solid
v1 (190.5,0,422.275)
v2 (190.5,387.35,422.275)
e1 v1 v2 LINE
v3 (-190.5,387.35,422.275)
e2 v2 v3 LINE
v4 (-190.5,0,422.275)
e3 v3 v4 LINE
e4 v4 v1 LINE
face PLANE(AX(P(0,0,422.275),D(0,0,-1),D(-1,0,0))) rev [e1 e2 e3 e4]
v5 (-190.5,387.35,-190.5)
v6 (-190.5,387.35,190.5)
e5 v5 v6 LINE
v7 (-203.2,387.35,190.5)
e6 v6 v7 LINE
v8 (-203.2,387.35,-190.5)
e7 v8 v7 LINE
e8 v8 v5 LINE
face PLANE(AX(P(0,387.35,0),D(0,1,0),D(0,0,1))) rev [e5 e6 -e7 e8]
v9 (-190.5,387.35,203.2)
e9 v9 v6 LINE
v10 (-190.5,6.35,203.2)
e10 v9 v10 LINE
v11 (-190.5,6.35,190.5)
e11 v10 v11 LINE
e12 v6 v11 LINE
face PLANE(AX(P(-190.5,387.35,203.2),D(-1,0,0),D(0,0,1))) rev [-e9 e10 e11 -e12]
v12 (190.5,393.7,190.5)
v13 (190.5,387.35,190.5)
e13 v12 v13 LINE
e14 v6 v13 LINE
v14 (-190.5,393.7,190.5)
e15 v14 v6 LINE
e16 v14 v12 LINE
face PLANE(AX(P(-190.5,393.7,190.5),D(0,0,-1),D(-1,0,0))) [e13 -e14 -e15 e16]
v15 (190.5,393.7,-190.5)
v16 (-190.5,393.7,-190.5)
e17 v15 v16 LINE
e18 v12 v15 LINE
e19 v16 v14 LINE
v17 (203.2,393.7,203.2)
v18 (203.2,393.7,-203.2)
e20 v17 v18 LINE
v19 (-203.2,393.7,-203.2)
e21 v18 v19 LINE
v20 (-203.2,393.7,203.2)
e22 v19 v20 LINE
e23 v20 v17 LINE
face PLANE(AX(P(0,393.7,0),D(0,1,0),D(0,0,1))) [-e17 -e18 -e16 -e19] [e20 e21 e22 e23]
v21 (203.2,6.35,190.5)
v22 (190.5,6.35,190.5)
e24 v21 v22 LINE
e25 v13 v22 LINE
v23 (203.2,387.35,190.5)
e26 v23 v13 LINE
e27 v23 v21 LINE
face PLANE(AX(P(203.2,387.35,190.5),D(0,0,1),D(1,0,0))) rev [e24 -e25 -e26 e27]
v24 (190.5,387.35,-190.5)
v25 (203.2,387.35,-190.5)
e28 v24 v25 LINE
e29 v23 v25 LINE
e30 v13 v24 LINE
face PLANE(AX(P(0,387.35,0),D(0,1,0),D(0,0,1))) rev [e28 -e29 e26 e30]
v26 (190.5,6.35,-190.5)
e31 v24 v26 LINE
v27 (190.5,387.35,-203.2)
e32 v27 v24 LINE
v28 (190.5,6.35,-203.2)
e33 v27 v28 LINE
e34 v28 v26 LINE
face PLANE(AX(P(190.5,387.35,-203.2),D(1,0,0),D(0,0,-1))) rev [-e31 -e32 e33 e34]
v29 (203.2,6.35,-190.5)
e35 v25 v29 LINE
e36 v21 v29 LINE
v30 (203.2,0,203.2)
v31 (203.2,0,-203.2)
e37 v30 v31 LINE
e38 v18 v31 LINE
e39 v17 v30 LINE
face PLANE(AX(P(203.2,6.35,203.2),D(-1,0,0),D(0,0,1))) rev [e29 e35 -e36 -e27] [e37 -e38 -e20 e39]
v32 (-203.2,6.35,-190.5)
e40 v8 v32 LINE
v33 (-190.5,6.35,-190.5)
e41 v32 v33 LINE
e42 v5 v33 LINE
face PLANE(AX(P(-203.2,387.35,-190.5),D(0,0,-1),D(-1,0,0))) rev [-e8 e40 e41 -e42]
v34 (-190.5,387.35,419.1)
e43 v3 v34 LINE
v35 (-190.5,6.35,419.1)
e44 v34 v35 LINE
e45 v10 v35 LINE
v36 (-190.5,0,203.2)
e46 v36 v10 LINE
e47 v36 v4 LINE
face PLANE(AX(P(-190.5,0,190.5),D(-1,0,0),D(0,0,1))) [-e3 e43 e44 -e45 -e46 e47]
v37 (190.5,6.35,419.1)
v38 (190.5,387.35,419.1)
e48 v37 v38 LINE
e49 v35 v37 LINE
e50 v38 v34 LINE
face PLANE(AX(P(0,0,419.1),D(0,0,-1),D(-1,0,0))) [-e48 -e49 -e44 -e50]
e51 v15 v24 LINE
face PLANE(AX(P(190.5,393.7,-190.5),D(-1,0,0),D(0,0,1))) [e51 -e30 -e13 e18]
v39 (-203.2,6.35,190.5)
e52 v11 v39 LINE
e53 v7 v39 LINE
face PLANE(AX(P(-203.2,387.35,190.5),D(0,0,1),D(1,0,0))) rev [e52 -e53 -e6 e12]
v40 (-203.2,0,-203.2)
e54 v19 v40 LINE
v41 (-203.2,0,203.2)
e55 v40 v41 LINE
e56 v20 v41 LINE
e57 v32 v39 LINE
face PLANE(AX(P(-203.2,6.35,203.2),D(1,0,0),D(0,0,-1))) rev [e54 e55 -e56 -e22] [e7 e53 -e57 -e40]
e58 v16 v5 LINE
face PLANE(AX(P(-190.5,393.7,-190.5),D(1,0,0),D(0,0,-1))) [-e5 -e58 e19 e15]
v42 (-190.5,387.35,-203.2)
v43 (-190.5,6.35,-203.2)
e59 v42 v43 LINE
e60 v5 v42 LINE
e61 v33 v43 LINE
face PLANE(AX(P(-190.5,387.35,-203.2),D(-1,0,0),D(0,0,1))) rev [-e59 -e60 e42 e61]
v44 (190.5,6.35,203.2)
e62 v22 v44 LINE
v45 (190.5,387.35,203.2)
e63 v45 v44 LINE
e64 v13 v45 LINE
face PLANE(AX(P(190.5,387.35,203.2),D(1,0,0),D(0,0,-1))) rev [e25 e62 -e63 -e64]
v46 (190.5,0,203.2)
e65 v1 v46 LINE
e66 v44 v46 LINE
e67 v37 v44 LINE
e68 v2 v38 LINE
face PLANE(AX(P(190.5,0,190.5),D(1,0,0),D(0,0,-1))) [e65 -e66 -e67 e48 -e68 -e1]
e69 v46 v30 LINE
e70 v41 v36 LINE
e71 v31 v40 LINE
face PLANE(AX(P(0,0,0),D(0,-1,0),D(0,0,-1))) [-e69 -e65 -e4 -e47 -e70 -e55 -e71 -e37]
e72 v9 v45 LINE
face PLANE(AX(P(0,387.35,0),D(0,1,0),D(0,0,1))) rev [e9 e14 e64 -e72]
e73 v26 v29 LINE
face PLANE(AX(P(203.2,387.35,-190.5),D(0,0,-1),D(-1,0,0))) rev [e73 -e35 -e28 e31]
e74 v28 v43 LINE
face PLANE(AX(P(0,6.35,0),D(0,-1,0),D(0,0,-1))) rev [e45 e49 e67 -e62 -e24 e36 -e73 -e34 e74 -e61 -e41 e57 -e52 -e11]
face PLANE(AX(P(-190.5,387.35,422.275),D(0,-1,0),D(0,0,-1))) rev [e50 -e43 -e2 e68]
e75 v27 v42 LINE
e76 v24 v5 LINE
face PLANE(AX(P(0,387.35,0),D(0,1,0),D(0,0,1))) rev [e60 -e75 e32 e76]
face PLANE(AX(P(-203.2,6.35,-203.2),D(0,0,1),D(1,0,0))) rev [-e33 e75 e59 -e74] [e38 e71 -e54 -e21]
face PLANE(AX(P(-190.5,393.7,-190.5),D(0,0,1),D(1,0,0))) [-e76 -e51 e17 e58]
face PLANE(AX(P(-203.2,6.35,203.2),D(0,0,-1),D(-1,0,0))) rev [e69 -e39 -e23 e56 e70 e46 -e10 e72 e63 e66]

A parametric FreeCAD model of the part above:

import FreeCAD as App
import Part
import Sketcher
from FreeCAD import Vector
Q = App.Units.Quantity

doc = App.newDocument("Part")
body = doc.addObject("PartDesign::Body", "Body")

sketch1 = body.newObject("Sketcher::SketchObject", "Sketch")
sketch1.AttachmentSupport = (doc.getObject("XZ_Plane"), [""])
sketch1.MapMode = "FlatFace"
sketch1.addGeometry(Part.LineSegment(Vector(-203, -203, 0), Vector(-203, 203, 0)), False)
sketch1.addGeometry(Part.LineSegment(Vector(-203, 203, 0), Vector(203, 203, 0)), False)
sketch1.addGeometry(Part.LineSegment(Vector(203, 203, 0), Vector(203, -203, 0)), False)
sketch1.addGeometry(Part.LineSegment(Vector(203, -203, 0), Vector(-203, -203, 0)), False)
sketch1.addConstraint(Sketcher.Constraint("Coincident", 0, 2, 1, 1))
sketch1.addConstraint(Sketcher.Constraint("Coincident", 1, 2, 2, 1))
sketch1.addConstraint(Sketcher.Constraint("Coincident", 2, 2, 3, 1))
sketch1.addConstraint(Sketcher.Constraint("Coincident", 3, 2, 0, 1))
sketch1.addConstraint(Sketcher.Constraint("Vertical", 0))
sketch1.addConstraint(Sketcher.Constraint("Horizontal", 1))
sketch1.addConstraint(Sketcher.Constraint("Vertical", 2))
sketch1.addConstraint(Sketcher.Constraint("Horizontal", 3))
sketch1.addConstraint(Sketcher.Constraint("Symmetric", 0, 2, 2, 2, -1, 1))
sketch1.addConstraint(Sketcher.Constraint("Equal", 3, 0))
sketch1.addConstraint(Sketcher.Constraint("DistanceX", 1, 1, 1, 2, Q("16 in")))
pad1 = body.newObject("PartDesign::Pad", "Pad")
pad1.Profile = sketch1
pad1.Length = Q("0.25 in")
pad1.Reversed = True

sketch2 = body.newObject("Sketcher::SketchObject", "Sketch001")
sketch2.AttachmentSupport = (doc.getObject("XZ_Plane"), [""])
sketch2.MapMode = "FlatFace"
sketch2.AttachmentOffset = App.Placement(Vector(0, 0, -0.25 * 25.4), App.Rotation())
sketch2.addGeometry(Part.LineSegment(Vector(-203, -203, 0), Vector(-203, -190, 0)), False)
sketch2.addGeometry(Part.LineSegment(Vector(-203, -190, 0), Vector(-190, -190, 0)), False)
sketch2.addGeometry(Part.LineSegment(Vector(-190, -190, 0), Vector(-190, -203, 0)), False)
sketch2.addGeometry(Part.LineSegment(Vector(-190, -203, 0), Vector(-203, -203, 0)), False)
sketch2.addGeometry(Part.LineSegment(Vector(190, -203, 0), Vector(190, -190, 0)), False)
sketch2.addGeometry(Part.LineSegment(Vector(190, -190, 0), Vector(203, -190, 0)), False)
sketch2.addGeometry(Part.LineSegment(Vector(203, -190, 0), Vector(203, -203, 0)), False)
sketch2.addGeometry(Part.LineSegment(Vector(203, -203, 0), Vector(190, -203, 0)), False)
sketch2.addGeometry(Part.LineSegment(Vector(190, 190, 0), Vector(190, 203, 0)), False)
sketch2.addGeometry(Part.LineSegment(Vector(190, 203, 0), Vector(203, 203, 0)), False)
sketch2.addGeometry(Part.LineSegment(Vector(203, 203, 0), Vector(203, 190, 0)), False)
sketch2.addGeometry(Part.LineSegment(Vector(203, 190, 0), Vector(190, 190, 0)), False)
sketch2.addGeometry(Part.LineSegment(Vector(-203, 190, 0), Vector(-203, 203, 0)), False)
sketch2.addGeometry(Part.LineSegment(Vector(-203, 203, 0), Vector(-190, 203, 0)), False)
sketch2.addGeometry(Part.LineSegment(Vector(-190, 203, 0), Vector(-190, 190, 0)), False)
sketch2.addGeometry(Part.LineSegment(Vector(-190, 190, 0), Vector(-203, 190, 0)), False)
sketch2.addConstraint(Sketcher.Constraint("Coincident", 0, 2, 1, 1))
sketch2.addConstraint(Sketcher.Constraint("Coincident", 1, 2, 2, 1))
sketch2.addConstraint(Sketcher.Constraint("Coincident", 2, 2, 3, 1))
sketch2.addConstraint(Sketcher.Constraint("Coincident", 3, 2, 0, 1))
sketch2.addConstraint(Sketcher.Constraint("Coincident", 4, 2, 5, 1))
sketch2.addConstraint(Sketcher.Constraint("Coincident", 5, 2, 6, 1))
sketch2.addConstraint(Sketcher.Constraint("Coincident", 6, 2, 7, 1))
sketch2.addConstraint(Sketcher.Constraint("Coincident", 7, 2, 4, 1))
sketch2.addConstraint(Sketcher.Constraint("Coincident", 8, 2, 9, 1))
sketch2.addConstraint(Sketcher.Constraint("Coincident", 9, 2, 10, 1))
sketch2.addConstraint(Sketcher.Constraint("Coincident", 10, 2, 11, 1))
sketch2.addConstraint(Sketcher.Constraint("Coincident", 11, 2, 8, 1))
sketch2.addConstraint(Sketcher.Constraint("Coincident", 12, 2, 13, 1))
sketch2.addConstraint(Sketcher.Constraint("Coincident", 13, 2, 14, 1))
sketch2.addConstraint(Sketcher.Constraint("Coincident", 14, 2, 15, 1))
sketch2.addConstraint(Sketcher.Constraint("Coincident", 15, 2, 12, 1))
sketch2.addConstraint(Sketcher.Constraint("Vertical", 0))
sketch2.addConstraint(Sketcher.Constraint("Horizontal", 1))
sketch2.addConstraint(Sketcher.Constraint("Vertical", 2))
sketch2.addConstraint(Sketcher.Constraint("Horizontal", 3))
sketch2.addConstraint(Sketcher.Constraint("Vertical", 4))
sketch2.addConstraint(Sketcher.Constraint("Horizontal", 5))
sketch2.addConstraint(Sketcher.Constraint("Vertical", 6))
sketch2.addConstraint(Sketcher.Constraint("Horizontal", 7))
sketch2.addConstraint(Sketcher.Constraint("Vertical", 8))
sketch2.addConstraint(Sketcher.Constraint("Horizontal", 9))
sketch2.addConstraint(Sketcher.Constraint("Vertical", 10))
sketch2.addConstraint(Sketcher.Constraint("Horizontal", 11))
sketch2.addConstraint(Sketcher.Constraint("Vertical", 12))
sketch2.addConstraint(Sketcher.Constraint("Horizontal", 13))
sketch2.addConstraint(Sketcher.Constraint("Vertical", 14))
sketch2.addConstraint(Sketcher.Constraint("Horizontal", 15))
sketch2.addConstraint(Sketcher.Constraint("Symmetric", 2, 2, 8, 2, -1, 1))
sketch2.addConstraint(Sketcher.Constraint("Symmetric", 0, 2, 10, 2, -1, 1))
sketch2.addConstraint(Sketcher.Constraint("Symmetric", 6, 2, 12, 2, -1, 1))
sketch2.addConstraint(Sketcher.Constraint("Symmetric", 4, 2, 14, 2, -1, 1))
sketch2.addConstraint(Sketcher.Constraint("Symmetric", 1, 2, 4, 2, -2))
sketch2.addConstraint(Sketcher.Constraint("Symmetric", 3, 2, 6, 2, -2))
sketch2.addConstraint(Sketcher.Constraint("Equal", 15, 0))
sketch2.addConstraint(Sketcher.Constraint("DistanceX", 1, 1, 1, 2, Q("0.5 in")))
sketch2.addConstraint(Sketcher.Constraint("DistanceX", 0, 2, -1, 1, Q("8 in")))
sketch2.addConstraint(Sketcher.Constraint("DistanceY", 2, 2, -1, 1, Q("8 in")))
pad2 = body.newObject("PartDesign::Pad", "Pad001")
pad2.Profile = sketch2
pad2.Length = Q("15 in")
pad2.Reversed = True

sketch3 = body.newObject("Sketcher::SketchObject", "Sketch002")
sketch3.AttachmentSupport = (doc.getObject("XZ_Plane"), [""])
sketch3.MapMode = "FlatFace"
sketch3.AttachmentOffset = App.Placement(Vector(0, 0, -15.25 * 25.4), App.Rotation())
sketch3.addGeometry(Part.LineSegment(Vector(-203, -203, 0), Vector(-203, 203, 0)), False)
sketch3.addGeometry(Part.LineSegment(Vector(-203, 203, 0), Vector(203, 203, 0)), False)
sketch3.addGeometry(Part.LineSegment(Vector(203, 203, 0), Vector(203, -203, 0)), False)
sketch3.addGeometry(Part.LineSegment(Vector(203, -203, 0), Vector(-203, -203, 0)), False)
sketch3.addGeometry(Part.LineSegment(Vector(190, 190, 0), Vector(-190, 190, 0)), False)
sketch3.addGeometry(Part.LineSegment(Vector(-190, 190, 0), Vector(-190, -190, 0)), False)
sketch3.addGeometry(Part.LineSegment(Vector(-190, -190, 0), Vector(190, -190, 0)), False)
sketch3.addGeometry(Part.LineSegment(Vector(190, -190, 0), Vector(190, 190, 0)), False)
sketch3.addConstraint(Sketcher.Constraint("Coincident", 0, 2, 1, 1))
sketch3.addConstraint(Sketcher.Constraint("Coincident", 1, 2, 2, 1))
sketch3.addConstraint(Sketcher.Constraint("Coincident", 2, 2, 3, 1))
sketch3.addConstraint(Sketcher.Constraint("Coincident", 3, 2, 0, 1))
sketch3.addConstraint(Sketcher.Constraint("Coincident", 4, 2, 5, 1))
sketch3.addConstraint(Sketcher.Constraint("Coincident", 5, 2, 6, 1))
sketch3.addConstraint(Sketcher.Constraint("Coincident", 6, 2, 7, 1))
sketch3.addConstraint(Sketcher.Constraint("Coincident", 7, 2, 4, 1))
sketch3.addConstraint(Sketcher.Constraint("Vertical", 0))
sketch3.addConstraint(Sketcher.Constraint("Horizontal", 1))
sketch3.addConstraint(Sketcher.Constraint("Vertical", 2))
sketch3.addConstraint(Sketcher.Constraint("Horizontal", 3))
sketch3.addConstraint(Sketcher.Constraint("Horizontal", 4))
sketch3.addConstraint(Sketcher.Constraint("Vertical", 5))
sketch3.addConstraint(Sketcher.Constraint("Horizontal", 6))
sketch3.addConstraint(Sketcher.Constraint("Vertical", 7))
sketch3.addConstraint(Sketcher.Constraint("Symmetric", 0, 2, 2, 2, -1, 1))
sketch3.addConstraint(Sketcher.Constraint("Symmetric", 4, 2, 6, 2, -1, 1))
sketch3.addConstraint(Sketcher.Constraint("Equal", 3, 0))
sketch3.addConstraint(Sketcher.Constraint("Equal", 6, 5))
sketch3.addConstraint(Sketcher.Constraint("DistanceX", 1, 1, 1, 2, Q("16 in")))
sketch3.addConstraint(Sketcher.Constraint("DistanceX", 4, 2, 4, 1, Q("15 in")))
pad3 = body.newObject("PartDesign::Pad", "Pad002")
pad3.Profile = sketch3
pad3.Length = Q("0.25 in")
pad3.Reversed = True

sketch4 = body.newObject("Sketcher::SketchObject", "Sketch003")
sketch4.AttachmentSupport = (doc.getObject("XZ_Plane"), [""])
sketch4.MapMode = "FlatFace"
sketch4.AttachmentOffset = App.Placement(Vector(0, 0, -0.25 * 25.4), App.Rotation())
sketch4.addGeometry(Part.LineSegment(Vector(-190, 190, 0), Vector(-190, 419, 0)), False)
sketch4.addGeometry(Part.LineSegment(Vector(-190, 419, 0), Vector(190, 419, 0)), False)
sketch4.addGeometry(Part.LineSegment(Vector(190, 419, 0), Vector(190, 190, 0)), False)
sketch4.addGeometry(Part.LineSegment(Vector(190, 190, 0), Vector(-190, 190, 0)), False)
sketch4.addConstraint(Sketcher.Constraint("Coincident", 0, 2, 1, 1))
sketch4.addConstraint(Sketcher.Constraint("Coincident", 1, 2, 2, 1))
sketch4.addConstraint(Sketcher.Constraint("Coincident", 2, 2, 3, 1))
sketch4.addConstraint(Sketcher.Constraint("Coincident", 3, 2, 0, 1))
sketch4.addConstraint(Sketcher.Constraint("Vertical", 0))
sketch4.addConstraint(Sketcher.Constraint("Horizontal", 1))
sketch4.addConstraint(Sketcher.Constraint("Vertical", 2))
sketch4.addConstraint(Sketcher.Constraint("Horizontal", 3))
sketch4.addConstraint(Sketcher.Constraint("DistanceX", 1, 1, 1, 2, Q("15 in")))
sketch4.addConstraint(Sketcher.Constraint("DistanceY", 0, 1, 0, 2, Q("9 in")))
sketch4.addConstraint(Sketcher.Constraint("DistanceX", 0, 2, -1, 1, Q("7.5 in")))
sketch4.addConstraint(Sketcher.Constraint("DistanceY", -1, 1, 0, 2, Q("16.5 in")))
pad4 = body.newObject("PartDesign::Pad", "Pad003")
pad4.Profile = sketch4
pad4.Length = Q("0.25 in")

sketch5 = body.newObject("Sketcher::SketchObject", "Sketch004")
sketch5.AttachmentSupport = (doc.getObject("XY_Plane"), [""])
sketch5.MapMode = "FlatFace"
sketch5.AttachmentOffset = App.Placement(Vector(0, 0, 16.5 * 25.4), App.Rotation())
sketch5.addGeometry(Part.LineSegment(Vector(-190, 387, 0), Vector(-190, 0, 0)), False)
sketch5.addGeometry(Part.LineSegment(Vector(-190, 0, 0), Vector(190, 0, 0)), False)
sketch5.addGeometry(Part.LineSegment(Vector(190, 0, 0), Vector(190, 387, 0)), False)
sketch5.addGeometry(Part.LineSegment(Vector(190, 387, 0), Vector(-190, 387, 0)), False)
sketch5.addConstraint(Sketcher.Constraint("Coincident", 0, 2, 1, 1))
sketch5.addConstraint(Sketcher.Constraint("Coincident", 1, 2, 2, 1))
sketch5.addConstraint(Sketcher.Constraint("Coincident", 2, 2, 3, 1))
sketch5.addConstraint(Sketcher.Constraint("Coincident", 3, 2, 0, 1))
sketch5.addConstraint(Sketcher.Constraint("Vertical", 0))
sketch5.addConstraint(Sketcher.Constraint("Horizontal", 1))
sketch5.addConstraint(Sketcher.Constraint("Vertical", 2))
sketch5.addConstraint(Sketcher.Constraint("Horizontal", 3))
sketch5.addConstraint(Sketcher.Constraint("Symmetric", 0, 2, 1, 2, -1, 1))
sketch5.addConstraint(Sketcher.Constraint("DistanceX", 1, 1, 1, 2, Q("15 in")))
sketch5.addConstraint(Sketcher.Constraint("DistanceY", 0, 2, 0, 1, Q("15.25 in")))
pad5 = body.newObject("PartDesign::Pad", "Pad004")
pad5.Profile = sketch5
pad5.Length = Q("0.125 in")

doc.recompute()
